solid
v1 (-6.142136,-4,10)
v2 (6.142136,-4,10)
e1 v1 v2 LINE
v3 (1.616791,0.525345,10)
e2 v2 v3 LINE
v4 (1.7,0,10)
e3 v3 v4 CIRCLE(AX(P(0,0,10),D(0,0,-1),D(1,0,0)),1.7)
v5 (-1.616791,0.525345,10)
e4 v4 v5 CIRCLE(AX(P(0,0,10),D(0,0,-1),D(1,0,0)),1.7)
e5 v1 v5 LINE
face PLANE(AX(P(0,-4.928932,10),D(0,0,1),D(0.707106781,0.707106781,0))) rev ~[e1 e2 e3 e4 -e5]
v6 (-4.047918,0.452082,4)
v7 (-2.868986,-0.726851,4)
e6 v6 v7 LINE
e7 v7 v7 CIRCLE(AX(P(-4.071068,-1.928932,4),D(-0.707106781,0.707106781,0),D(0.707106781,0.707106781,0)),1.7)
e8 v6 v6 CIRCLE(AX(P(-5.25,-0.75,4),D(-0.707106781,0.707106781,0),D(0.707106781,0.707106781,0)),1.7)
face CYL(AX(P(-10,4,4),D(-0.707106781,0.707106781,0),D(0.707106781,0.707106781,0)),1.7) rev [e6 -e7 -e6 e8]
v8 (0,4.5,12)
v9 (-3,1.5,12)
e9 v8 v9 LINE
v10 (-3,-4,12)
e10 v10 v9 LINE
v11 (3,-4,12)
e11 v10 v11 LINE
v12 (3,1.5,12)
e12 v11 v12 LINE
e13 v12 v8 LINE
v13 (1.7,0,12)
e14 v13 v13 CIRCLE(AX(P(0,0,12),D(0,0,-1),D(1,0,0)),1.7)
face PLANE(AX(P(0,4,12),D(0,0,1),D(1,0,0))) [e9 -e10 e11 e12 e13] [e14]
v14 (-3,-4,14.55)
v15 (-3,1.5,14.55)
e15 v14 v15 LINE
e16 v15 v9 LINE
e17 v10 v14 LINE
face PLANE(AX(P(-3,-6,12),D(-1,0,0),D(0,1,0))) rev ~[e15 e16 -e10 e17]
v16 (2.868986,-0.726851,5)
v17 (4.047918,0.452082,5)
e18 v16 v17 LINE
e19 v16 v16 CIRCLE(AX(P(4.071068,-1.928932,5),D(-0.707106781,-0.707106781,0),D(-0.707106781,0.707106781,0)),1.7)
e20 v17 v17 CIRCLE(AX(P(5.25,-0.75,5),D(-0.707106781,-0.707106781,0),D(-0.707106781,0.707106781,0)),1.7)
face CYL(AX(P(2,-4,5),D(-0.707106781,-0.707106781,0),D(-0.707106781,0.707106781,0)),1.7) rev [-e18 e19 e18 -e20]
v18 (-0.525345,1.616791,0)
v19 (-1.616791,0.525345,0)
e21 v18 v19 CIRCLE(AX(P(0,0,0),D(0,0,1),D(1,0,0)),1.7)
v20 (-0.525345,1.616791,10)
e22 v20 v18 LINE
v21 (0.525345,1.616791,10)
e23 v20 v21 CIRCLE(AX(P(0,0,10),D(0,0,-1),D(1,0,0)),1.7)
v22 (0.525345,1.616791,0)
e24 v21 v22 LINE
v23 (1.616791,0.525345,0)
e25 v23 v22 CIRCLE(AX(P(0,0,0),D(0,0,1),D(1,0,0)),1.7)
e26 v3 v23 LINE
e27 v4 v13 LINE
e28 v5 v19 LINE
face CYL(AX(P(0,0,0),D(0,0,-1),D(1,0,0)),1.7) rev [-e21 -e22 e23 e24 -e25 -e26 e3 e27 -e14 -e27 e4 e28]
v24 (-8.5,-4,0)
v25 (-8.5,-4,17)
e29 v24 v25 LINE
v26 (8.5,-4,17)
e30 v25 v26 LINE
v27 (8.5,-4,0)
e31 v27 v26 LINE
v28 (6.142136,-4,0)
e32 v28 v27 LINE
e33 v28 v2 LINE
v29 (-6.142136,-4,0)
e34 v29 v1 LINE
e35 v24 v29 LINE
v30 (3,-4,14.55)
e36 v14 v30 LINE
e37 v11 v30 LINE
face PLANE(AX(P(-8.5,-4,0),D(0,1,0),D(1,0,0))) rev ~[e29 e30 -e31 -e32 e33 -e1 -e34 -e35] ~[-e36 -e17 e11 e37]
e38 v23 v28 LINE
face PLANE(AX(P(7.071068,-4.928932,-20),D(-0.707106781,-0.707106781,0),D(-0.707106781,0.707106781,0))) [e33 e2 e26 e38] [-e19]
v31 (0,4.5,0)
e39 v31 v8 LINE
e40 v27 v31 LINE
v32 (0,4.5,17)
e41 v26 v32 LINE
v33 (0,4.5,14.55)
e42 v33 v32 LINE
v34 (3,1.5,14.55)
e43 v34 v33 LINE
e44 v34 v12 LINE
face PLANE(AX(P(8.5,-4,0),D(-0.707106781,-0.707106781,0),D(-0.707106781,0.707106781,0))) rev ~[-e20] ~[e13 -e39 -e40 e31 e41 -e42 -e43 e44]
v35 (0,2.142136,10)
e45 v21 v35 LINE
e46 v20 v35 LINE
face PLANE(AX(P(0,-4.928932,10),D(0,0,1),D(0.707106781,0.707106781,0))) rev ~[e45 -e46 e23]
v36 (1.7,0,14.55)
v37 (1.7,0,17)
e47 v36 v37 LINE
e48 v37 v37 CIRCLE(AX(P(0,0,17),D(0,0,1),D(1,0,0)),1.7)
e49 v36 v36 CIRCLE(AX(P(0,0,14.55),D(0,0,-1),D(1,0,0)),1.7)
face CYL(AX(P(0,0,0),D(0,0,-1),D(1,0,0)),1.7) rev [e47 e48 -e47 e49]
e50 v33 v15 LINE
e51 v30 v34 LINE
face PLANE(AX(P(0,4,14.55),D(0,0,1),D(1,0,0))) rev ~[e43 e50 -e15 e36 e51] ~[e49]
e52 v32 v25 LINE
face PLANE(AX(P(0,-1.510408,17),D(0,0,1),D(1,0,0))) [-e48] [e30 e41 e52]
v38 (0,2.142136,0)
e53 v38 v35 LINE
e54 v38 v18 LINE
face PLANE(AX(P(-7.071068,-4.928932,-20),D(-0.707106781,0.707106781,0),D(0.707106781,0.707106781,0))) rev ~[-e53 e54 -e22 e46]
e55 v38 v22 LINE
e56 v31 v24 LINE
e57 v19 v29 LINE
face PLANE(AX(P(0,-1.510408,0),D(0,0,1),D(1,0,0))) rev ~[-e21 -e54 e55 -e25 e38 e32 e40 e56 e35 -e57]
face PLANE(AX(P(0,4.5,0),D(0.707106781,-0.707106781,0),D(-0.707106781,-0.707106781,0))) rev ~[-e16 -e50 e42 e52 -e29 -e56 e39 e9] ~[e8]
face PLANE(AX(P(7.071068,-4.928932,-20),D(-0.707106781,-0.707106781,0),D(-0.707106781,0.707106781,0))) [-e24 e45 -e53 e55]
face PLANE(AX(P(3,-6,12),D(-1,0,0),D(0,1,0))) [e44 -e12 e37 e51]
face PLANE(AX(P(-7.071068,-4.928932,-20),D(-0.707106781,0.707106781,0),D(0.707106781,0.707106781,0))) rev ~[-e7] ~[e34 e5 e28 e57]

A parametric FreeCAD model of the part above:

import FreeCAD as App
import Part
import Sketcher


def add_polygon(sketch, points):
    """Adds a closed chain of lines whose ends are joined by coincident constraints."""
    first, n = sketch.GeometryCount, len(points)
    for a, b in zip(points, points[1:] + points[:1]):
        sketch.addGeometry(Part.LineSegment(App.Vector(*a, 0), App.Vector(*b, 0)), False)
    for i in range(n):
        sketch.addConstraint(Sketcher.Constraint("Coincident", first + i, 2, first + (i + 1) % n, 1))

doc = App.newDocument("Part")
body = doc.addObject("PartDesign::Body", "Body")

sketch1 = body.newObject("Sketcher::SketchObject", "Sketch")
sketch1.AttachmentSupport = (doc.getObject("XY_Plane"), [""])
sketch1.MapMode = "FlatFace"
add_polygon(sketch1, [(0, 4.5), (-8.5, -4), (8.5, -4)])
sketch1.addGeometry(Part.Circle(App.Vector(0, 0, 0), App.Vector(0, 0, 1), 1.7), False)
sketch1.addConstraint([
    Sketcher.Constraint("Horizontal", 1),
    Sketcher.Constraint("Coincident", 3, 3, -1, 1),
    Sketcher.Constraint("PointOnObject", 2, 2, -2),
    Sketcher.Constraint("Perpendicular", 0, 2),
    Sketcher.Constraint("Equal", 0, 2),
    Sketcher.Constraint("Diameter", 3, 3.4),
    Sketcher.Constraint("DistanceX", 1, 1, 1, 2, 17.0),
    Sketcher.Constraint("DistanceY", 0, 2, -1, 1, 4.0),
])
pad1 = body.newObject("PartDesign::Pad", "Pad")
pad1.Profile = sketch1
pad1.Length = 17

sketch2 = body.newObject("Sketcher::SketchObject", "Sketch001")
sketch2.AttachmentSupport = (doc.getObject("XY_Plane"), [""])
sketch2.MapMode = "FlatFace"
sketch2.AttachmentOffset = App.Placement(App.Vector(0, 0, 12), App.Rotation())
add_polygon(sketch2, [(-3, 14), (-3, -6), (3, -6), (3, 14)])
sketch2.addConstraint([
    Sketcher.Constraint("Vertical", 0),
    Sketcher.Constraint("Horizontal", 1),
    Sketcher.Constraint("Vertical", 2),
    Sketcher.Constraint("Horizontal", 3),
    Sketcher.Constraint("DistanceX", 1, 1, 1, 2, 6.0),
    Sketcher.Constraint("DistanceY", 0, 2, 0, 1, 20.0),
    Sketcher.Constraint("DistanceX", 0, 2, -1, 1, 3.0),
    Sketcher.Constraint("DistanceY", 0, 2, -1, 1, 6.0),
])
pocket1 = body.newObject("PartDesign::Pocket", "Pocket")
pocket1.Profile = sketch2
pocket1.Length = 2.55
pocket1.Reversed = True

sketch3 = body.newObject("Sketcher::SketchObject", "Sketch002")
sketch3.AttachmentSupport = (doc.getObject("XY_Plane"), [""])
sketch3.MapMode = "FlatFace"
sketch3.AttachmentOffset = App.Placement(App.Vector(0, 0, -20), App.Rotation())
add_polygon(sketch3, [(-7.071068, -4.928932), (0, -12), (7.071068, -4.928932), (0, 2.142136)])
sketch3.addConstraint([
    Sketcher.Constraint("Symmetric", 1, 2, 3, 2, -2),
    Sketcher.Constraint("PointOnObject", 0, 2, -2),
    Sketcher.Constraint("PointOnObject", 2, 2, -2),
    Sketcher.Constraint("Perpendicular", 0, 1),
    Sketcher.Constraint("Perpendicular", 1, 2),
    Sketcher.Constraint("Distance", 0, 10.0),
    Sketcher.Constraint("DistanceY", 0, 2, -1, 1, 12.0),
])
pocket2 = body.newObject("PartDesign::Pocket", "Pocket001")
pocket2.Profile = sketch3
pocket2.Length = 30
pocket2.Reversed = True

sketch4 = body.newObject("Sketcher::SketchObject", "Sketch003")
sketch4.Placement = App.Placement(App.Vector(2, -4, 5), App.Rotation(App.Vector(-0.707106781, 0.707106781, 0), App.Vector(0, 0, 0.999999999), App.Vector(0.707106781, 0.707106781, 0), "ZXY"))
sketch4.addGeometry(Part.Circle(App.Vector(0, 0, 0), App.Vector(0, 0, 1), 1.7), False)
sketch4.addConstraint([
    Sketcher.Constraint("Coincident", 0, 3, -1, 1),
    Sketcher.Constraint("Diameter", 0, 3.4),
])
pocket3 = body.newObject("PartDesign::Pocket", "Pocket002")
pocket3.Profile = sketch4
pocket3.Length = 10
pocket3.Reversed = True

sketch5 = body.newObject("Sketcher::SketchObject", "Sketch004")
sketch5.Placement = App.Placement(App.Vector(-10, 4, 4), App.Rotation(App.Vector(0.707106781, 0.707106781, 0), App.Vector(0, 0, 0.999999999), App.Vector(0.707106781, -0.707106781, 0), "ZXY"))
sketch5.addGeometry(Part.Circle(App.Vector(0, 0, 0), App.Vector(0, 0, 1), 1.7), False)
sketch5.addConstraint([
    Sketcher.Constraint("Coincident", 0, 3, -1, 1),
    Sketcher.Constraint("Diameter", 0, 3.4),
])
pocket4 = body.newObject("PartDesign::Pocket", "Pocket003")
pocket4.Profile = sketch5
pocket4.Length = 11
pocket4.Reversed = True

doc.recompute()
